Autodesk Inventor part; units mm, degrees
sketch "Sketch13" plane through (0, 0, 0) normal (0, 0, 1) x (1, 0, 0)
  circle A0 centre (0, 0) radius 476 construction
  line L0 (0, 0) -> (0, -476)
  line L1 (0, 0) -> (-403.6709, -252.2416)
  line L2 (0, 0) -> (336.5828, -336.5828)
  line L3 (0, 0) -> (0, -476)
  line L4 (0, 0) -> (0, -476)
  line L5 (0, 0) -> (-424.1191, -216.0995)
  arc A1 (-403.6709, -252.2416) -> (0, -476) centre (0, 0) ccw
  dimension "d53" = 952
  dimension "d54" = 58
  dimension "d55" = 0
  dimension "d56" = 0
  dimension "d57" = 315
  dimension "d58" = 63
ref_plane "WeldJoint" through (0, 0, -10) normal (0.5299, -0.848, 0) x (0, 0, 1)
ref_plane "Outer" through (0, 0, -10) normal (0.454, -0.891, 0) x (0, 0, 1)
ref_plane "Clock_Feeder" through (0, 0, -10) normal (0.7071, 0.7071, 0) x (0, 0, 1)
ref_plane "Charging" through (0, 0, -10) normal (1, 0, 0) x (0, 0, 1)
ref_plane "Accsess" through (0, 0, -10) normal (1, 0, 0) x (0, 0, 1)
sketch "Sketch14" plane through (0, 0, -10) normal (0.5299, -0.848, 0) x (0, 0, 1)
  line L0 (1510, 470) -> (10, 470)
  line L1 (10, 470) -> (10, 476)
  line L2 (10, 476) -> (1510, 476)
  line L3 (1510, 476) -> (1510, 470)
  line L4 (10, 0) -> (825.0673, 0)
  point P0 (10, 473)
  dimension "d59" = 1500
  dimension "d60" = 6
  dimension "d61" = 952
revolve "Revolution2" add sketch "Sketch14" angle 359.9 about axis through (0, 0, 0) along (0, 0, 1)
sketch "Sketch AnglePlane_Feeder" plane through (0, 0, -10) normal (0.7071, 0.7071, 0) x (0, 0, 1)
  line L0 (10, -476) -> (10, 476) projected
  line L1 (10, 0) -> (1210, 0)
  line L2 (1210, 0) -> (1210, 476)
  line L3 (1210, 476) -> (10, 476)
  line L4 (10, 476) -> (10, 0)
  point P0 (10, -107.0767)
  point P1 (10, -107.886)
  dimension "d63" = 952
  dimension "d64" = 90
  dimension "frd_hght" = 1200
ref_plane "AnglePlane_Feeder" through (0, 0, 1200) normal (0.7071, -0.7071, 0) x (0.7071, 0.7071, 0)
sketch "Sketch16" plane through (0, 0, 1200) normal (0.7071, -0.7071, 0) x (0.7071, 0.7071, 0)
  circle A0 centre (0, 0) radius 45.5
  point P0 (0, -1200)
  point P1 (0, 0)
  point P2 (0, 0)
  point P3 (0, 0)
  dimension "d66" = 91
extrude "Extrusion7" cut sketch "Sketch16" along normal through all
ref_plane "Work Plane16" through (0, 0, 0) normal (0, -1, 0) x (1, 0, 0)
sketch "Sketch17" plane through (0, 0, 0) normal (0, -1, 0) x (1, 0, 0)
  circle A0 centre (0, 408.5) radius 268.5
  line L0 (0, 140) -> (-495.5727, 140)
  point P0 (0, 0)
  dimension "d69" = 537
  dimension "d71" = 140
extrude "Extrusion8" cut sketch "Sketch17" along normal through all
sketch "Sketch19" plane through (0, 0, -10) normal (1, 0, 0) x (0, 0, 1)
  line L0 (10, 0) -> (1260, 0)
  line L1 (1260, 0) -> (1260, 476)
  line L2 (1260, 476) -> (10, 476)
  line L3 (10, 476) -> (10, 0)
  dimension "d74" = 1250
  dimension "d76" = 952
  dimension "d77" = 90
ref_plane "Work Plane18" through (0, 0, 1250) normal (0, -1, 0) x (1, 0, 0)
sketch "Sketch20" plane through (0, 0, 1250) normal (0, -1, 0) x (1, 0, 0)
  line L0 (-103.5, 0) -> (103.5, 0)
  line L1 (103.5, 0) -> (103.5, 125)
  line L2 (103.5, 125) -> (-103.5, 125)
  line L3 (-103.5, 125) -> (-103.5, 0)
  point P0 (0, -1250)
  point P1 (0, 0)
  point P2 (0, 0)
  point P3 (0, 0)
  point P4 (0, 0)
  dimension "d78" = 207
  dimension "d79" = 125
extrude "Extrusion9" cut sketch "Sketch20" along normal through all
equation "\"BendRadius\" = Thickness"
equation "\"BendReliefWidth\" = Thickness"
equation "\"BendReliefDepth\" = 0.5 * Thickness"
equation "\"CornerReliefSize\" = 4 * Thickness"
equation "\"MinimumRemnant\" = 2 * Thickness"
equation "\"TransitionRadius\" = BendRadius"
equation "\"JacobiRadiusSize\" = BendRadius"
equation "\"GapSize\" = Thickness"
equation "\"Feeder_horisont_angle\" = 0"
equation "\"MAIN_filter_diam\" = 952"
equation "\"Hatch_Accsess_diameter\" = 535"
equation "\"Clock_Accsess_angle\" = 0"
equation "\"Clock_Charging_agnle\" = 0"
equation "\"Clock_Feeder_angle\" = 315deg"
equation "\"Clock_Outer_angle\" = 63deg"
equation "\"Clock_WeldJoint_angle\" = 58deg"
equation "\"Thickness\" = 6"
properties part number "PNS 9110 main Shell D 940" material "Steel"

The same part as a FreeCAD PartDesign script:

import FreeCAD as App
import Part
import Sketcher


def add_polygon(sketch, points):
    """Adds a closed chain of lines whose ends are joined by coincident constraints."""
    first, n = sketch.GeometryCount, len(points)
    for a, b in zip(points, points[1:] + points[:1]):
        sketch.addGeometry(Part.LineSegment(App.Vector(*a, 0), App.Vector(*b, 0)), False)
    for i in range(n):
        sketch.addConstraint(Sketcher.Constraint("Coincident", first + i, 2, first + (i + 1) % n, 1))

doc = App.newDocument("Part")
body = doc.addObject("PartDesign::Body", "Body")

# Sketch on an angled plane
sketch1 = doc.addObject("Sketcher::SketchObject", "Sketch")
body.addObject(sketch1)
sketch1.Placement = App.Placement(App.Vector(0, 0, -10), App.Rotation(App.Vector(0, 0, 1), App.Vector(-0.848048096, -0.529919264, 0), App.Vector(0.529919264, -0.848048096, 0), "ZXY"))
add_polygon(sketch1, [(10, 470), (1510, 470), (1510, 476), (10, 476)])  # lines 0-3
sketch1.addConstraint([
    Sketcher.Constraint("Horizontal", 0),
    Sketcher.Constraint("Vertical", 1),
    Sketcher.Constraint("Horizontal", 2),
    Sketcher.Constraint("Vertical", 3),
    Sketcher.Constraint("DistanceX", 0, 1, 0, 2, 1500.0),
    Sketcher.Constraint("DistanceY", 1, 1, 1, 2, 6.0),
    Sketcher.Constraint("DistanceX", -1, 1, 0, 2, 1510.0),
    Sketcher.Constraint("DistanceY", -1, 1, 0, 2, 470.0),
])
revolution = doc.addObject("PartDesign::Revolution", "Revolution")
body.addObject(revolution)
revolution.Profile = sketch1
revolution.ReferenceAxis = (sketch1, ["H_Axis"])
revolution.Angle = 359.9

# Sketch on an angled plane
sketch2 = doc.addObject("Sketcher::SketchObject", "Sketch001")
body.addObject(sketch2)
sketch2.Placement = App.Placement(App.Vector(0, 0, 1200), App.Rotation(App.Vector(0.707106781, 0.707106781, 0), App.Vector(0, 0, 0.999999999), App.Vector(0.707106781, -0.707106781, 0), "ZXY"))
sketch2.addGeometry(Part.Circle(App.Vector(0, 0, 0), App.Vector(0, 0, 1), 46), False)
sketch2.addConstraint([
    Sketcher.Constraint("Coincident", 0, 3, -1, 1),
    Sketcher.Constraint("Diameter", 0, 91.0),
])
pocket1 = doc.addObject("PartDesign::Pocket", "Pocket")
body.addObject(pocket1)
pocket1.Profile = sketch2
pocket1.Type = "ThroughAll"
pocket1.Reversed = True

# Sketch on XZ plane
sketch3 = doc.addObject("Sketcher::SketchObject", "Sketch002")
body.addObject(sketch3)
sketch3.AttachmentSupport = (doc.XZ_Plane, [""])
sketch3.MapMode = "FlatFace"
sketch3.addGeometry(Part.Circle(App.Vector(0, 408, 0), App.Vector(0, 0, 1), 268), False)
sketch3.addConstraint([
    Sketcher.Constraint("PointOnObject", 0, 3, -2),
    Sketcher.Constraint("Diameter", 0, 537.0),
    Sketcher.Constraint("DistanceY", -1, 1, 0, 3, 408.5),
])
pocket2 = doc.addObject("PartDesign::Pocket", "Pocket001")
body.addObject(pocket2)
pocket2.Profile = sketch3
pocket2.Type = "ThroughAll"
pocket2.Reversed = True

# Sketch on XZ plane
sketch4 = doc.addObject("Sketcher::SketchObject", "Sketch003")
body.addObject(sketch4)
sketch4.AttachmentSupport = (doc.XZ_Plane, [""])
sketch4.MapMode = "FlatFace"
add_polygon(sketch4, [(-104, 1375), (-104, 1250), (104, 1250), (104, 1375)])  # lines 0-3
sketch4.addConstraint([
    Sketcher.Constraint("Vertical", 0),
    Sketcher.Constraint("Horizontal", 1),
    Sketcher.Constraint("Vertical", 2),
    Sketcher.Constraint("Horizontal", 3),
    Sketcher.Constraint("DistanceX", 1, 1, 1, 2, 207.0),
    Sketcher.Constraint("DistanceY", 0, 2, 0, 1, 125.0),
    Sketcher.Constraint("DistanceY", -1, 1, 0, 2, 1250.0),
    Sketcher.Constraint("DistanceX", 0, 2, -1, 1, 103.5),
])
pocket3 = doc.addObject("PartDesign::Pocket", "Pocket002")
body.addObject(pocket3)
pocket3.Profile = sketch4
pocket3.Type = "ThroughAll"
pocket3.Reversed = True

doc.recompute()
